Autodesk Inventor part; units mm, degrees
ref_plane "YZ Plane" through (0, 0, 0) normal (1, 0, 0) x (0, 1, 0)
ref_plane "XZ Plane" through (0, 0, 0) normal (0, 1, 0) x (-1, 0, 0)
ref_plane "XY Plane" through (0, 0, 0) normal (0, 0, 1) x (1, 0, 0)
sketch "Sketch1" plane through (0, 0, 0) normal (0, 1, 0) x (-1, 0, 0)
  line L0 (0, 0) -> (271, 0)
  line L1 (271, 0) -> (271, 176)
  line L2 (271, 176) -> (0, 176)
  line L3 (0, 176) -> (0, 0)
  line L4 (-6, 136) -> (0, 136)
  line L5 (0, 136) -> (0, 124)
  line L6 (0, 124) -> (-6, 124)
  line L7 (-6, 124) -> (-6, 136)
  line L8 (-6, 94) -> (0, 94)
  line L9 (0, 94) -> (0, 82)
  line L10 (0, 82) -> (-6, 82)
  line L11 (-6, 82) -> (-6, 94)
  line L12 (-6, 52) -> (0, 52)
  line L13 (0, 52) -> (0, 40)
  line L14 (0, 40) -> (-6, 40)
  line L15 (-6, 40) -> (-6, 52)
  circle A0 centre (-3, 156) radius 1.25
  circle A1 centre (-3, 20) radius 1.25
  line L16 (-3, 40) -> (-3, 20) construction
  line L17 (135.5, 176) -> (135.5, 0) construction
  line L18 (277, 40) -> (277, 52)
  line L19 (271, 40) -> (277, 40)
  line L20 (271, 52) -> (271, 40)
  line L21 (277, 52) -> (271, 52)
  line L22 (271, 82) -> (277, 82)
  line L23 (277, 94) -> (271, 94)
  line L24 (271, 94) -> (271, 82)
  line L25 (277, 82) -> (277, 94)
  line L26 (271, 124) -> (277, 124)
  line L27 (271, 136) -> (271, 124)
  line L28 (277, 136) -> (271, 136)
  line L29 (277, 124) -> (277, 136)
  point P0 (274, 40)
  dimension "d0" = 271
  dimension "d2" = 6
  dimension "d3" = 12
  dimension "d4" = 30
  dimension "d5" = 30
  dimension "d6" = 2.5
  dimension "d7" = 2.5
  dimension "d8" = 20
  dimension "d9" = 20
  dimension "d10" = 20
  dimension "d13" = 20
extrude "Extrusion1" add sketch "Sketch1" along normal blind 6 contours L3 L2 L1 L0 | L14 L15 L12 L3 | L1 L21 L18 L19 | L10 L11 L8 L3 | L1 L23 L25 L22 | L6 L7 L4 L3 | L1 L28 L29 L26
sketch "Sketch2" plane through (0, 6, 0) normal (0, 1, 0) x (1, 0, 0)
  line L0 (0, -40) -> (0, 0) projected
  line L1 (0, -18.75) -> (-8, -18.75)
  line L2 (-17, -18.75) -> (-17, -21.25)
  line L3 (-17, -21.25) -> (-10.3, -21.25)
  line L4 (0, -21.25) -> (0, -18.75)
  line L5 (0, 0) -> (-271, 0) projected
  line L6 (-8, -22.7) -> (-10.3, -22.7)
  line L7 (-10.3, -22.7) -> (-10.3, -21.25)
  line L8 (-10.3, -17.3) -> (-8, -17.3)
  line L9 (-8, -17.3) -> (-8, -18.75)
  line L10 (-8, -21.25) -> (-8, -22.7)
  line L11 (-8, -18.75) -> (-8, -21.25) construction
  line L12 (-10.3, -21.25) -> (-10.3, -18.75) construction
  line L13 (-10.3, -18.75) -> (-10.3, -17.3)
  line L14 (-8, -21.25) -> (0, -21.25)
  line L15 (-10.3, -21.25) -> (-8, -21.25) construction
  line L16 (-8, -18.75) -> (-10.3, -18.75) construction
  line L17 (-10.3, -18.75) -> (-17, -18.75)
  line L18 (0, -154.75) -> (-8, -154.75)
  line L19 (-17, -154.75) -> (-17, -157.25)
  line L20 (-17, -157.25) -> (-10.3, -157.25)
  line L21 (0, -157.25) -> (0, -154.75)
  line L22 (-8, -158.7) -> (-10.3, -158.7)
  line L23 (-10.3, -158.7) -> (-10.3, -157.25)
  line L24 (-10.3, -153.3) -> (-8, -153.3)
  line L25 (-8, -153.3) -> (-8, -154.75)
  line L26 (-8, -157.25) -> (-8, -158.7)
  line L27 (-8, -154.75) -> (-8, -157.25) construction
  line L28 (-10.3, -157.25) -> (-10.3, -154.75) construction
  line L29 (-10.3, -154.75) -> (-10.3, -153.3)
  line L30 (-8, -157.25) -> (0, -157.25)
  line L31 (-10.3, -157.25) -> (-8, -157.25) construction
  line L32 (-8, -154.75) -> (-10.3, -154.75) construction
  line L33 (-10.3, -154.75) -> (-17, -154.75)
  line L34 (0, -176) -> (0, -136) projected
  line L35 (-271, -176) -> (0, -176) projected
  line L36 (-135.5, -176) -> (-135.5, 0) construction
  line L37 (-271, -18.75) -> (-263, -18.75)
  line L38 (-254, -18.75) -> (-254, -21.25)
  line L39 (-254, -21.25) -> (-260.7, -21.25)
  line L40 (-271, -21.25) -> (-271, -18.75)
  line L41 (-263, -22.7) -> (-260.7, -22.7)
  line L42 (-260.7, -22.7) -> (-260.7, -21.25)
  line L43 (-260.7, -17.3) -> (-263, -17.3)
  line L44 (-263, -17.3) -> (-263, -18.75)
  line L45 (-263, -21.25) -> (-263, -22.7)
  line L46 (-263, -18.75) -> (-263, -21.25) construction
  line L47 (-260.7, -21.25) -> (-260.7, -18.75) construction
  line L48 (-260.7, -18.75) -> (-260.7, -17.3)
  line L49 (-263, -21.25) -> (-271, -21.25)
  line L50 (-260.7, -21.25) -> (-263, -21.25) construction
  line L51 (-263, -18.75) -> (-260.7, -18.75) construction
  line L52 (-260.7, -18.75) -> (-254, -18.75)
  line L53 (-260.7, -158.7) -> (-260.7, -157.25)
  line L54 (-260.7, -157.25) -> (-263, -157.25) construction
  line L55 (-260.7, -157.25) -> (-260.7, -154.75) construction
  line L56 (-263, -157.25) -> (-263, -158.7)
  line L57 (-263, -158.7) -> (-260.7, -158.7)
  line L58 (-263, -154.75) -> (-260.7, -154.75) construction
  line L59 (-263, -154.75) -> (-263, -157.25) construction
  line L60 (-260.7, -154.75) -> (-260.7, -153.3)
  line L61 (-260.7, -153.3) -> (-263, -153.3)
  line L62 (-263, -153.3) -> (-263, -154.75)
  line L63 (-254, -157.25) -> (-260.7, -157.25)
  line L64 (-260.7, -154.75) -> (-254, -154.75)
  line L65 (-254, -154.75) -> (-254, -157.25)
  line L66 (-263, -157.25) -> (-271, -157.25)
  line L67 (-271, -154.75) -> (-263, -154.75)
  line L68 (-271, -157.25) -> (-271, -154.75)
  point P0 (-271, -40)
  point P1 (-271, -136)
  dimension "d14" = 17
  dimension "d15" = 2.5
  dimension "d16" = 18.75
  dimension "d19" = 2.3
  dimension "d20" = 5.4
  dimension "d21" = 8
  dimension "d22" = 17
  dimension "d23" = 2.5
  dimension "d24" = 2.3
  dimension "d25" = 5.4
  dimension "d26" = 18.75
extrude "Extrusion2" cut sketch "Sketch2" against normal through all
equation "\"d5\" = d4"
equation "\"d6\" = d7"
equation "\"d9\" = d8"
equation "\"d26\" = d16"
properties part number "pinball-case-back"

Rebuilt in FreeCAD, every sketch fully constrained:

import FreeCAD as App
import Part
import Sketcher

V = App.Vector


def add_polygon(sketch, points):
    """Adds a closed chain of lines whose ends are joined by coincident constraints."""
    first, n = sketch.GeometryCount, len(points)
    for a, b in zip(points, points[1:] + points[:1]):
        sketch.addGeometry(Part.LineSegment(App.Vector(*a, 0), App.Vector(*b, 0)), False)
    for i in range(n):
        sketch.addConstraint(Sketcher.Constraint("Coincident", first + i, 2, first + (i + 1) % n, 1))

doc = App.newDocument("Part")
body = doc.addObject("PartDesign::Body", "Body")

# Sketch on XZ plane
sketch1 = body.newObject("Sketcher::SketchObject", "Sketch")
sketch1.AttachmentSupport = (doc.getObject("XZ_Plane"), [""])
sketch1.MapMode = "FlatFace"
add_polygon(sketch1, [(0, 40), (0, 0), (-271, 0), (-271, 40), (-277, 40), (-277, 52), (-271, 52), (-271, 82), (-277, 82), (-277, 94), (-271, 94), (-271, 124), (-277, 124), (-277, 136), (-271, 136), (-271, 176), (0, 176), (0, 136), (6, 136), (6, 124), (0, 124), (0, 94), (6, 94), (6, 82), (0, 82), (0, 52), (6, 52), (6, 40)])  # lines 0-27
sketch1.addConstraint(Sketcher.Constraint("Vertical", 0))
sketch1.addConstraint(Sketcher.Constraint("Horizontal", 1))
sketch1.addConstraint(Sketcher.Constraint("Vertical", 2))
sketch1.addConstraint(Sketcher.Constraint("Horizontal", 3))
sketch1.addConstraint(Sketcher.Constraint("Vertical", 4))
sketch1.addConstraint(Sketcher.Constraint("Horizontal", 5))
sketch1.addConstraint(Sketcher.Constraint("Vertical", 6))
sketch1.addConstraint(Sketcher.Constraint("Horizontal", 7))
sketch1.addConstraint(Sketcher.Constraint("Vertical", 8))
sketch1.addConstraint(Sketcher.Constraint("Horizontal", 9))
sketch1.addConstraint(Sketcher.Constraint("Vertical", 10))
sketch1.addConstraint(Sketcher.Constraint("Horizontal", 11))
sketch1.addConstraint(Sketcher.Constraint("Vertical", 12))
sketch1.addConstraint(Sketcher.Constraint("Horizontal", 13))
sketch1.addConstraint(Sketcher.Constraint("Vertical", 14))
sketch1.addConstraint(Sketcher.Constraint("Horizontal", 15))
sketch1.addConstraint(Sketcher.Constraint("Vertical", 16))
sketch1.addConstraint(Sketcher.Constraint("Horizontal", 17))
sketch1.addConstraint(Sketcher.Constraint("Vertical", 18))
sketch1.addConstraint(Sketcher.Constraint("Horizontal", 19))
sketch1.addConstraint(Sketcher.Constraint("Vertical", 20))
sketch1.addConstraint(Sketcher.Constraint("Horizontal", 21))
sketch1.addConstraint(Sketcher.Constraint("Vertical", 22))
sketch1.addConstraint(Sketcher.Constraint("Horizontal", 23))
sketch1.addConstraint(Sketcher.Constraint("Vertical", 24))
sketch1.addConstraint(Sketcher.Constraint("Horizontal", 25))
sketch1.addConstraint(Sketcher.Constraint("Vertical", 26))
sketch1.addConstraint(Sketcher.Constraint("Horizontal", 27))
sketch1.addConstraint(Sketcher.Constraint("Coincident", 0, 2, -1, 1))
sketch1.addConstraint(Sketcher.Constraint("PointOnObject", 15, 2, -2))
sketch1.addConstraint(Sketcher.Constraint("PointOnObject", 19, 2, -2))
sketch1.addConstraint(Sketcher.Constraint("PointOnObject", 23, 2, -2))
sketch1.addConstraint(Sketcher.Constraint("Horizontal", 13, 2, 16, 2))
sketch1.addConstraint(Sketcher.Constraint("Horizontal", 11, 2, 18, 2))
sketch1.addConstraint(Sketcher.Constraint("Horizontal", 9, 2, 20, 2))
sketch1.addConstraint(Sketcher.Constraint("Horizontal", 7, 2, 22, 2))
sketch1.addConstraint(Sketcher.Constraint("Horizontal", 5, 2, 24, 2))
sketch1.addConstraint(Sketcher.Constraint("Horizontal", 3, 2, 26, 2))
sketch1.addConstraint(Sketcher.Constraint("Vertical", 2, 2, 5, 2))
sketch1.addConstraint(Sketcher.Constraint("Vertical", 4, 2, 7, 2))
sketch1.addConstraint(Sketcher.Constraint("Vertical", 6, 2, 9, 2))
sketch1.addConstraint(Sketcher.Constraint("Vertical", 8, 2, 11, 2))
sketch1.addConstraint(Sketcher.Constraint("Vertical", 10, 2, 13, 2))
sketch1.addConstraint(Sketcher.Constraint("Vertical", 18, 2, 21, 2))
sketch1.addConstraint(Sketcher.Constraint("Vertical", 22, 2, 25, 2))
sketch1.addConstraint(Sketcher.Constraint("Equal", 13, 17))
sketch1.addConstraint(Sketcher.Constraint("Equal", 4, 8))
sketch1.addConstraint(Sketcher.Constraint("Equal", 6, 10))
sketch1.addConstraint(Sketcher.Constraint("Equal", 8, 12))
sketch1.addConstraint(Sketcher.Constraint("Equal", 2, 14))
sketch1.addConstraint(Sketcher.Constraint("DistanceX", 1, 2, 1, 1, 271.0))
sketch1.addConstraint(Sketcher.Constraint("DistanceX", 3, 2, 3, 1, 6.0))
sketch1.addConstraint(Sketcher.Constraint("DistanceY", 4, 1, 4, 2, 12.0))
sketch1.addConstraint(Sketcher.Constraint("DistanceY", 6, 1, 6, 2, 30.0))
sketch1.addConstraint(Sketcher.Constraint("DistanceY", 0, 2, 0, 1, 40.0))
pad1 = body.newObject("PartDesign::Pad", "Pad")
pad1.Profile = sketch1
pad1.Length = 6
pad1.Reversed = True

# Sketch on XZ plane
sketch2 = body.newObject("Sketcher::SketchObject", "Sketch001")
sketch2.AttachmentSupport = (doc.getObject("XZ_Plane"), [""])
sketch2.MapMode = "FlatFace"
sketch2.AttachmentOffset = App.Placement(V(0, 0, -6), App.Rotation())
add_polygon(sketch2, [(-8, 21.25), (0, 21.25), (0, 18.75), (-8, 18.75), (-8, 17.3), (-10.3, 17.3), (-10.3, 18.75), (-17, 18.75), (-17, 21.25), (-10.3, 21.25), (-10.3, 22.7), (-8, 22.7)])  # lines 0-11
add_polygon(sketch2, [(0, 157.25), (0, 154.75), (-8, 154.75), (-8, 153.3), (-10.3, 153.3), (-10.3, 154.75), (-17, 154.75), (-17, 157.25), (-10.3, 157.25), (-10.3, 158.7), (-8, 158.7), (-8, 157.25)])  # lines 12-23
add_polygon(sketch2, [(-263, 18.75), (-271, 18.75), (-271, 21.25), (-263, 21.25), (-263, 22.7), (-260.7, 22.7), (-260.7, 21.25), (-254, 21.25), (-254, 18.75), (-260.7, 18.75), (-260.7, 17.3), (-263, 17.3)])  # lines 24-35
add_polygon(sketch2, [(-263, 158.7), (-260.7, 158.7), (-260.7, 157.25), (-254, 157.25), (-254, 154.75), (-260.7, 154.75), (-260.7, 153.3), (-263, 153.3), (-263, 154.75), (-271, 154.75), (-271, 157.25), (-263, 157.25)])  # lines 36-47
sketch2.addConstraint(Sketcher.Constraint("Horizontal", 0))
sketch2.addConstraint(Sketcher.Constraint("Vertical", 1))
sketch2.addConstraint(Sketcher.Constraint("Horizontal", 2))
sketch2.addConstraint(Sketcher.Constraint("Vertical", 3))
sketch2.addConstraint(Sketcher.Constraint("Horizontal", 4))
sketch2.addConstraint(Sketcher.Constraint("Vertical", 5))
sketch2.addConstraint(Sketcher.Constraint("Horizontal", 6))
sketch2.addConstraint(Sketcher.Constraint("Vertical", 7))
sketch2.addConstraint(Sketcher.Constraint("Horizontal", 8))
sketch2.addConstraint(Sketcher.Constraint("Vertical", 9))
sketch2.addConstraint(Sketcher.Constraint("Horizontal", 10))
sketch2.addConstraint(Sketcher.Constraint("Vertical", 11))
sketch2.addConstraint(Sketcher.Constraint("Vertical", 12))
sketch2.addConstraint(Sketcher.Constraint("Horizontal", 13))
sketch2.addConstraint(Sketcher.Constraint("Vertical", 14))
sketch2.addConstraint(Sketcher.Constraint("Horizontal", 15))
sketch2.addConstraint(Sketcher.Constraint("Vertical", 16))
sketch2.addConstraint(Sketcher.Constraint("Horizontal", 17))
sketch2.addConstraint(Sketcher.Constraint("Vertical", 18))
sketch2.addConstraint(Sketcher.Constraint("Horizontal", 19))
sketch2.addConstraint(Sketcher.Constraint("Vertical", 20))
sketch2.addConstraint(Sketcher.Constraint("Horizontal", 21))
sketch2.addConstraint(Sketcher.Constraint("Vertical", 22))
sketch2.addConstraint(Sketcher.Constraint("Horizontal", 23))
sketch2.addConstraint(Sketcher.Constraint("Horizontal", 24))
sketch2.addConstraint(Sketcher.Constraint("Vertical", 25))
sketch2.addConstraint(Sketcher.Constraint("Horizontal", 26))
sketch2.addConstraint(Sketcher.Constraint("Vertical", 27))
sketch2.addConstraint(Sketcher.Constraint("Horizontal", 28))
sketch2.addConstraint(Sketcher.Constraint("Vertical", 29))
sketch2.addConstraint(Sketcher.Constraint("Horizontal", 30))
sketch2.addConstraint(Sketcher.Constraint("Vertical", 31))
sketch2.addConstraint(Sketcher.Constraint("Horizontal", 32))
sketch2.addConstraint(Sketcher.Constraint("Vertical", 33))
sketch2.addConstraint(Sketcher.Constraint("Horizontal", 34))
sketch2.addConstraint(Sketcher.Constraint("Vertical", 35))
sketch2.addConstraint(Sketcher.Constraint("Horizontal", 36))
sketch2.addConstraint(Sketcher.Constraint("Vertical", 37))
sketch2.addConstraint(Sketcher.Constraint("Horizontal", 38))
sketch2.addConstraint(Sketcher.Constraint("Vertical", 39))
sketch2.addConstraint(Sketcher.Constraint("Horizontal", 40))
sketch2.addConstraint(Sketcher.Constraint("Vertical", 41))
sketch2.addConstraint(Sketcher.Constraint("Horizontal", 42))
sketch2.addConstraint(Sketcher.Constraint("Vertical", 43))
sketch2.addConstraint(Sketcher.Constraint("Horizontal", 44))
sketch2.addConstraint(Sketcher.Constraint("Vertical", 45))
sketch2.addConstraint(Sketcher.Constraint("Horizontal", 46))
sketch2.addConstraint(Sketcher.Constraint("Vertical", 47))
sketch2.addConstraint(Sketcher.Constraint("PointOnObject", 0, 2, -2))
sketch2.addConstraint(Sketcher.Constraint("PointOnObject", 12, 2, -2))
sketch2.addConstraint(Sketcher.Constraint("Horizontal", 2, 2, 5, 2))
sketch2.addConstraint(Sketcher.Constraint("Horizontal", 0, 2, 7, 2))
sketch2.addConstraint(Sketcher.Constraint("Horizontal", 13, 2, 16, 2))
sketch2.addConstraint(Sketcher.Constraint("Horizontal", 19, 2, 22, 2))
sketch2.addConstraint(Sketcher.Constraint("Horizontal", 6, 2, 24, 2))
sketch2.addConstraint(Sketcher.Constraint("Horizontal", 11, 2, 25, 2))
sketch2.addConstraint(Sketcher.Constraint("Horizontal", 10, 2, 27, 2))
sketch2.addConstraint(Sketcher.Constraint("Horizontal", 26, 2, 29, 2))
sketch2.addConstraint(Sketcher.Constraint("Horizontal", 24, 2, 31, 2))
sketch2.addConstraint(Sketcher.Constraint("Horizontal", 4, 2, 33, 2))
sketch2.addConstraint(Sketcher.Constraint("Horizontal", 21, 2, 36, 2))
sketch2.addConstraint(Sketcher.Constraint("Horizontal", 23, 2, 37, 2))
sketch2.addConstraint(Sketcher.Constraint("Horizontal", 17, 2, 39, 2))
sketch2.addConstraint(Sketcher.Constraint("Horizontal", 15, 2, 41, 2))
sketch2.addConstraint(Sketcher.Constraint("Horizontal", 40, 2, 43, 2))
sketch2.addConstraint(Sketcher.Constraint("Horizontal", 38, 2, 45, 2))
sketch2.addConstraint(Sketcher.Constraint("Vertical", 5, 2, 8, 2))
sketch2.addConstraint(Sketcher.Constraint("Vertical", 3, 2, 10, 2))
sketch2.addConstraint(Sketcher.Constraint("Vertical", 11, 2, 13, 2))
sketch2.addConstraint(Sketcher.Constraint("Vertical", 9, 2, 15, 2))
sketch2.addConstraint(Sketcher.Constraint("Vertical", 7, 2, 17, 2))
sketch2.addConstraint(Sketcher.Constraint("Vertical", 16, 2, 19, 2))
sketch2.addConstraint(Sketcher.Constraint("Vertical", 14, 2, 21, 2))
sketch2.addConstraint(Sketcher.Constraint("Vertical", 29, 2, 32, 2))
sketch2.addConstraint(Sketcher.Constraint("Vertical", 27, 2, 34, 2))
sketch2.addConstraint(Sketcher.Constraint("Vertical", 33, 2, 36, 2))
sketch2.addConstraint(Sketcher.Constraint("Vertical", 31, 2, 38, 2))
sketch2.addConstraint(Sketcher.Constraint("Vertical", 37, 2, 40, 2))
sketch2.addConstraint(Sketcher.Constraint("Vertical", 35, 2, 42, 2))
sketch2.addConstraint(Sketcher.Constraint("Vertical", 25, 2, 44, 2))
sketch2.addConstraint(Sketcher.Constraint("Vertical", 43, 2, 46, 2))
sketch2.addConstraint(Sketcher.Constraint("Equal", 23, 24))
sketch2.addConstraint(Sketcher.Constraint("Equal", 21, 28))
sketch2.addConstraint(Sketcher.Constraint("Equal", 19, 30))
sketch2.addConstraint(Sketcher.Constraint("Equal", 5, 9))
sketch2.addConstraint(Sketcher.Constraint("Equal", 7, 12))
sketch2.addConstraint(Sketcher.Constraint("Equal", 11, 14))
sketch2.addConstraint(Sketcher.Constraint("Equal", 16, 20))
sketch2.addConstraint(Sketcher.Constraint("DistanceX", 0, 1, 0, 2, 8.0))
sketch2.addConstraint(Sketcher.Constraint("DistanceX", 4, 2, 4, 1, 2.3))
sketch2.addConstraint(Sketcher.Constraint("DistanceY", 1, 2, 1, 1, 2.5))
sketch2.addConstraint(Sketcher.Constraint("DistanceX", 6, 2, -1, 1, 17.0))
sketch2.addConstraint(Sketcher.Constraint("DistanceY", 4, 2, 9, 2, 5.4))
sketch2.addConstraint(Sketcher.Constraint("DistanceY", -1, 1, 1, 2, 18.75))
sketch2.addConstraint(Sketcher.Constraint("DistanceX", 24, 2, -1, 1, 271.0))
sketch2.addConstraint(Sketcher.Constraint("DistanceY", 28, 2, 36, 2, 136.0))
pocket1 = body.newObject("PartDesign::Pocket", "Pocket")
pocket1.Profile = sketch2
pocket1.Type = "ThroughAll"
pocket1.Reversed = True

doc.recompute()
